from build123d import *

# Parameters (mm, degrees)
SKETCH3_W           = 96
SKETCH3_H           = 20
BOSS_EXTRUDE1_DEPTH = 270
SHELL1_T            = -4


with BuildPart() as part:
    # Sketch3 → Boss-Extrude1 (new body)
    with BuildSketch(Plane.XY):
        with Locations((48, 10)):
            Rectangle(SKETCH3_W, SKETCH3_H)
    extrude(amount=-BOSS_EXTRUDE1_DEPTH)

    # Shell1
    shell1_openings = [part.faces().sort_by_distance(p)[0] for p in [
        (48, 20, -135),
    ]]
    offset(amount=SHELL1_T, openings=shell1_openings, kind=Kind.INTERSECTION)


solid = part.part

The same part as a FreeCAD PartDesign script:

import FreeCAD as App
import Part
import Sketcher

V = App.Vector


def faces_at(feature, points):
    """Names of the faces that lie closest to the given points."""
    faces = feature.Shape.Faces
    near = lambda p: min(range(len(faces)), key=lambda i: faces[i].distToShape(Part.Vertex(*p))[0])
    return sorted({f"Face{near(p) + 1}" for p in points})


def add_polygon(sketch, points):
    """Adds a closed chain of lines whose ends are joined by coincident constraints."""
    first, n = sketch.GeometryCount, len(points)
    for a, b in zip(points, points[1:] + points[:1]):
        sketch.addGeometry(Part.LineSegment(App.Vector(*a, 0), App.Vector(*b, 0)), False)
    for i in range(n):
        sketch.addConstraint(Sketcher.Constraint("Coincident", first + i, 2, first + (i + 1) % n, 1))

doc = App.newDocument("Part")
body = doc.addObject("PartDesign::Body", "Body")

# Sketch on XY plane
sketch1 = body.newObject("Sketcher::SketchObject", "Sketch")
sketch1.AttachmentSupport = (doc.getObject("XY_Plane"), [""])
sketch1.MapMode = "FlatFace"
add_polygon(sketch1, [(0, 20), (0, 0), (96, 0), (96, 20)])  # lines 0-3
sketch1.addConstraint([
    Sketcher.Constraint("Vertical", 0),
    Sketcher.Constraint("Horizontal", 1),
    Sketcher.Constraint("Vertical", 2),
    Sketcher.Constraint("Horizontal", 3),
    Sketcher.Constraint("Coincident", 0, 2, -1, 1),
    Sketcher.Constraint("DistanceX", 1, 1, 1, 2, 96.0),
    Sketcher.Constraint("DistanceY", 0, 2, 0, 1, 20.0),
])
pad1 = body.newObject("PartDesign::Pad", "Pad")
pad1.Profile = sketch1
pad1.Length = 270
pad1.Reversed = True
doc.recompute()

thickness = body.newObject("PartDesign::Thickness", "Thickness")
thickness.Base = (pad1, faces_at(pad1, [(48, 20, -135)]))
thickness.Value = 4
thickness.Reversed = True
thickness.Join = "Intersection"

doc.recompute()
